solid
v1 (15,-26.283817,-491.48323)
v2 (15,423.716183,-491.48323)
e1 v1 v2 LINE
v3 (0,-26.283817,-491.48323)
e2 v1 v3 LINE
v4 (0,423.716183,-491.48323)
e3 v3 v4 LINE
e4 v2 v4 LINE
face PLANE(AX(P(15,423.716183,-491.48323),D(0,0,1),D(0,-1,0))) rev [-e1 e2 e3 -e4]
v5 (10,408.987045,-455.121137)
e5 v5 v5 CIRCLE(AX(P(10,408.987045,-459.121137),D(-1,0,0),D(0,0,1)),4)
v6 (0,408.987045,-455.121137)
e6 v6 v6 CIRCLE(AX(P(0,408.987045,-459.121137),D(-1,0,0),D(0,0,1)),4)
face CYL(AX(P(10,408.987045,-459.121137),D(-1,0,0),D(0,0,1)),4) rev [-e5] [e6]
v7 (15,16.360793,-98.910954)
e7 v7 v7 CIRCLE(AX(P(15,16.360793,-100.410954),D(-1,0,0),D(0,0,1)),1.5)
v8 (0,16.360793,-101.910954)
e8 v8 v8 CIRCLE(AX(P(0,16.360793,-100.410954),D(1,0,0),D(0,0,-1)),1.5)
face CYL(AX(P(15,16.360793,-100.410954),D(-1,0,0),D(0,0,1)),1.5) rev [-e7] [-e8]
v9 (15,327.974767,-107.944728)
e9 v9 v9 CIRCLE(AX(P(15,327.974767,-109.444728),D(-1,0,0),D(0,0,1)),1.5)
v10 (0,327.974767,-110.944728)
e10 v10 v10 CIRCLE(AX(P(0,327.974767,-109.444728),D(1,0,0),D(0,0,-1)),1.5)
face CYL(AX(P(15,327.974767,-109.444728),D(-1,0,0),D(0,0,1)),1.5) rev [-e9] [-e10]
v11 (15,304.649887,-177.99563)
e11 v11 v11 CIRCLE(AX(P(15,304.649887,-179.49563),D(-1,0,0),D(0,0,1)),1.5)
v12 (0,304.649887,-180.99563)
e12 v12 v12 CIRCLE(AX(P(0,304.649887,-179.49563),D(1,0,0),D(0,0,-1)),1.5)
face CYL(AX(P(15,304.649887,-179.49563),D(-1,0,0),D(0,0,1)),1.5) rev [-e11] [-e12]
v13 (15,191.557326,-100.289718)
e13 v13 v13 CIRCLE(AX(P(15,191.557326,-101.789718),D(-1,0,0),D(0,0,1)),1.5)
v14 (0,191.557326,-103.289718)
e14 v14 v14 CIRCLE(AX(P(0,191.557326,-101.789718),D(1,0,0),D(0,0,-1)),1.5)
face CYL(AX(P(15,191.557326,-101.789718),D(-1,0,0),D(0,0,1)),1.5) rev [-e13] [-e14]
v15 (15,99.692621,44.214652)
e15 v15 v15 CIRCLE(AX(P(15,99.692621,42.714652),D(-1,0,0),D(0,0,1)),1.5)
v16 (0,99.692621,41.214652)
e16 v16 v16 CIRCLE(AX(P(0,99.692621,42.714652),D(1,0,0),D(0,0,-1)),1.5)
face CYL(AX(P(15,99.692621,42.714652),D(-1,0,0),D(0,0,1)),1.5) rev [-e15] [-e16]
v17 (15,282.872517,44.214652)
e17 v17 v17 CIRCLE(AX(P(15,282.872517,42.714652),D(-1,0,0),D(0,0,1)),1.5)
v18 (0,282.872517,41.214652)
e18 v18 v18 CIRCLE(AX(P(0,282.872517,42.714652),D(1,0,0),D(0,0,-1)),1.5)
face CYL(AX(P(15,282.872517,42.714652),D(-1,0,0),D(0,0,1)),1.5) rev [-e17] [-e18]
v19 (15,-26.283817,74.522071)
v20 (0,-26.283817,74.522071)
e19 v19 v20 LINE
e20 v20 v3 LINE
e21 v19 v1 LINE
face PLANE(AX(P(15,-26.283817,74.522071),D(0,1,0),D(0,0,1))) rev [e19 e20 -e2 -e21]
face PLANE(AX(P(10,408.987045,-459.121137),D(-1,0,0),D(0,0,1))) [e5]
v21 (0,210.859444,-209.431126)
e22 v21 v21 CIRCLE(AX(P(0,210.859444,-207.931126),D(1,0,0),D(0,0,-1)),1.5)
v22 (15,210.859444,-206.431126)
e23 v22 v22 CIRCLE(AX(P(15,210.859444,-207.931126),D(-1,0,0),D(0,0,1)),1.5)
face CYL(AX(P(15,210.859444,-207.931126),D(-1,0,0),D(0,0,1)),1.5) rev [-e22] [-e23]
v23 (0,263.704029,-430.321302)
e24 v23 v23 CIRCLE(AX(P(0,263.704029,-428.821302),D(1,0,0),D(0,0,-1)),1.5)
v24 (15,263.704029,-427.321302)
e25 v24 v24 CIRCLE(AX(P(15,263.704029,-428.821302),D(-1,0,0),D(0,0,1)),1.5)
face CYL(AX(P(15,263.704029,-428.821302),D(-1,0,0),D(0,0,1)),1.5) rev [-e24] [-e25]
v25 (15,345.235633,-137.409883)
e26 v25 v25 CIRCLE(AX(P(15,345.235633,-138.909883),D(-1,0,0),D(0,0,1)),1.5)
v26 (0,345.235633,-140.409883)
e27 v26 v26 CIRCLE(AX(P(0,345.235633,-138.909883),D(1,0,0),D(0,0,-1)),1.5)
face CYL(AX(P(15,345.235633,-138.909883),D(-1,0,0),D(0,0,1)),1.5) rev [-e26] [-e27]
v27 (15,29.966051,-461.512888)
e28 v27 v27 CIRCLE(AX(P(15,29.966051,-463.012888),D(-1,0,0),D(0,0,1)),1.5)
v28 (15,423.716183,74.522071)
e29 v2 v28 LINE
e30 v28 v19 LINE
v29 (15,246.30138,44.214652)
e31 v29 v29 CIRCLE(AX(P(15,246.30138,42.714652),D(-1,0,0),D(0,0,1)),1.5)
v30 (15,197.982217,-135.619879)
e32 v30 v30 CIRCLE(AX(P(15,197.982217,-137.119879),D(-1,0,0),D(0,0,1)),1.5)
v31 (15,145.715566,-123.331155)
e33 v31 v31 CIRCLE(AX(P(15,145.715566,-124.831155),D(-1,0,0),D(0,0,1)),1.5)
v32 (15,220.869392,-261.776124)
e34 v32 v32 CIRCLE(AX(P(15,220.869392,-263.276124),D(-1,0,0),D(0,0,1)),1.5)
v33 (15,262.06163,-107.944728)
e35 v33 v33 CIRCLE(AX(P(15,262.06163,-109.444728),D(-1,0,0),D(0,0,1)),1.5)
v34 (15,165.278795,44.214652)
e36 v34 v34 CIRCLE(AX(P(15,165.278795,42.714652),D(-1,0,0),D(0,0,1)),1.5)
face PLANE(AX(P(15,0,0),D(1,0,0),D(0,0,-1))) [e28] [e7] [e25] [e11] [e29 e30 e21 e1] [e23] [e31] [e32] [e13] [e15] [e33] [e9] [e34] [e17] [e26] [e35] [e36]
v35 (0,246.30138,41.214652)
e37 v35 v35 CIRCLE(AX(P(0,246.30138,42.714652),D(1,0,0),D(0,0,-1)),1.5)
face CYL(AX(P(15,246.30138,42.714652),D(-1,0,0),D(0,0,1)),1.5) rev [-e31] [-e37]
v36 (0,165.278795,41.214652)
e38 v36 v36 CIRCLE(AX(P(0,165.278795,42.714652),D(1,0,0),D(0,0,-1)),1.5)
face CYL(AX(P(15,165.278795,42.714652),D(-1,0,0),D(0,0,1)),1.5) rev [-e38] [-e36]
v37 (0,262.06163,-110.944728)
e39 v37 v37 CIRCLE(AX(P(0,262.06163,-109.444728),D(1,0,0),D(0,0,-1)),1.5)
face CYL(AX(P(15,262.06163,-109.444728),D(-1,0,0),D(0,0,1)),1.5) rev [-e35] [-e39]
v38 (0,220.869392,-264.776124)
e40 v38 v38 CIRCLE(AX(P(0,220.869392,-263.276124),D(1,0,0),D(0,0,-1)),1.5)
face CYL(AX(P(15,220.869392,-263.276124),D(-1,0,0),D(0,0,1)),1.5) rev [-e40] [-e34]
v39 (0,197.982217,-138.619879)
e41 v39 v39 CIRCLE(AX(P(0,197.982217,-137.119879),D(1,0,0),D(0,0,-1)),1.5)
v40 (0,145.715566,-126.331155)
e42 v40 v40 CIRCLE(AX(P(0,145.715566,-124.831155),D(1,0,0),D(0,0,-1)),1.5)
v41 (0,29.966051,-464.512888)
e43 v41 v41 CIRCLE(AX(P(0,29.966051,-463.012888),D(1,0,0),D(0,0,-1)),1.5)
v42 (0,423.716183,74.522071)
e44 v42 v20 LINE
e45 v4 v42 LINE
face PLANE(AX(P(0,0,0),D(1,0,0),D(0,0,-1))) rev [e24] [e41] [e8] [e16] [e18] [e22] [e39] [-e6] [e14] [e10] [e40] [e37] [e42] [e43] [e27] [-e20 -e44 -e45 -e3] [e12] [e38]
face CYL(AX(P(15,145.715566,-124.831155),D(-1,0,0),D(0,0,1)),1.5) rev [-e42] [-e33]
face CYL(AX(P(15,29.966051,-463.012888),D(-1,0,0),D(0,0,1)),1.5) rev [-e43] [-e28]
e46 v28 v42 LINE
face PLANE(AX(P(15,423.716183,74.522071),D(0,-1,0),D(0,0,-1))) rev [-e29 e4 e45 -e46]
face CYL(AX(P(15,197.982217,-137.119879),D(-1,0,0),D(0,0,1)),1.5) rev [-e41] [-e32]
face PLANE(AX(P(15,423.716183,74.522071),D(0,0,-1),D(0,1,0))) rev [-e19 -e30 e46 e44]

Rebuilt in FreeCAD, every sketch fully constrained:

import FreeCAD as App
import Part
import Sketcher
Q = App.Units.Quantity


def add_polygon(sketch, points):
    """Adds a closed chain of lines whose ends are joined by coincident constraints."""
    first, n = sketch.GeometryCount, len(points)
    for a, b in zip(points, points[1:] + points[:1]):
        sketch.addGeometry(Part.LineSegment(App.Vector(*a, 0), App.Vector(*b, 0)), False)
    for i in range(n):
        sketch.addConstraint(Sketcher.Constraint("Coincident", first + i, 2, first + (i + 1) % n, 1))

doc = App.newDocument("Part")
params = doc.addObject("Spreadsheet::Sheet", "Params")
for row, (alias, value) in enumerate([
    ("sketch1_width", "450 mm"),
    ("pad1_length", "15 mm"),
    ("sketch2_diameter", "8 mm"),
    ("pocket1_length", "10 mm"),
    ("sketch3_diameter", "3 mm"),
], start=1):
    params.set(f"A{row}", alias)
    params.set(f"B{row}", "=" + value)
    params.setAlias(f"B{row}", alias)

body = doc.addObject("PartDesign::Body", "Body")

# Sketch on YZ plane
sketch1 = doc.addObject("Sketcher::SketchObject", "Sketch")
body.addObject(sketch1)
sketch1.AttachmentSupport = (doc.YZ_Plane, [""])
sketch1.MapMode = "FlatFace"
add_polygon(sketch1, [(424, 75), (-26, 75), (-26, -491), (424, -491)])  # lines 0-3
sketch1.addConstraint(Sketcher.Constraint("Horizontal", 0))
sketch1.addConstraint(Sketcher.Constraint("Vertical", 1))
sketch1.addConstraint(Sketcher.Constraint("Horizontal", 2))
sketch1.addConstraint(Sketcher.Constraint("Vertical", 3))
sketch1.addConstraint(Sketcher.Constraint("DistanceX", 0, 2, 0, 1, Q("450 mm")))
sketch1.addConstraint(Sketcher.Constraint("DistanceY", 1, 2, 1, 1, Q("566.005301 mm")))
sketch1.addConstraint(Sketcher.Constraint("DistanceY", -1, 1, 0, 2, Q("74.522071 mm")))
sketch1.addConstraint(Sketcher.Constraint("DistanceX", 0, 2, -1, 1, Q("26.283817 mm")))
sketch1.setExpression("Constraints[8]", "Params.sketch1_width")
pad1 = doc.addObject("PartDesign::Pad", "Pad")
body.addObject(pad1)
pad1.Profile = sketch1
pad1.setExpression("Length", "Params.pad1_length")

# Sketch on YZ plane
sketch2 = doc.addObject("Sketcher::SketchObject", "Sketch001")
body.addObject(sketch2)
sketch2.AttachmentSupport = (doc.YZ_Plane, [""])
sketch2.MapMode = "FlatFace"
sketch2.addGeometry(Part.Circle(App.Vector(409, -459.1, 0), App.Vector(0, 0, 1), 4), False)
sketch2.addConstraint(Sketcher.Constraint("Diameter", 0, Q("8 mm")))
sketch2.addConstraint(Sketcher.Constraint("DistanceX", -1, 1, 0, 3, Q("408.987045 mm")))
sketch2.addConstraint(Sketcher.Constraint("DistanceY", 0, 3, -1, 1, Q("459.121137 mm")))
sketch2.setExpression("Constraints[0]", "Params.sketch2_diameter")
pocket1 = doc.addObject("PartDesign::Pocket", "Pocket")
body.addObject(pocket1)
pocket1.Profile = sketch2
pocket1.setExpression("Length", "Params.pocket1_length")
pocket1.Reversed = True

# Sketch on YZ plane
sketch3 = doc.addObject("Sketcher::SketchObject", "Sketch002")
body.addObject(sketch3)
sketch3.AttachmentSupport = (doc.YZ_Plane, [""])
sketch3.MapMode = "FlatFace"
sketch3.addGeometry(Part.Circle(App.Vector(345.2, -138.9, 0), App.Vector(0, 0, 1), 1.5), False)
sketch3.addGeometry(Part.Circle(App.Vector(304.6, -179.5, 0), App.Vector(0, 0, 1), 1.5), False)
sketch3.addGeometry(Part.Circle(App.Vector(220.9, -263.3, 0), App.Vector(0, 0, 1), 1.5), False)
sketch3.addGeometry(Part.Circle(App.Vector(210.9, -207.9, 0), App.Vector(0, 0, 1), 1.5), False)
sketch3.addGeometry(Part.Circle(App.Vector(198, -137.1, 0), App.Vector(0, 0, 1), 1.5), False)
sketch3.addGeometry(Part.Circle(App.Vector(165.3, 42.7, 0), App.Vector(0, 0, 1), 1.5), False)
sketch3.addGeometry(Part.Circle(App.Vector(145.7, -124.8, 0), App.Vector(0, 0, 1), 1.5), False)
sketch3.addGeometry(Part.Circle(App.Vector(99.7, 42.7, 0), App.Vector(0, 0, 1), 1.5), False)
sketch3.addGeometry(Part.Circle(App.Vector(16.4, -100.4, 0), App.Vector(0, 0, 1), 1.5), False)
sketch3.addGeometry(Part.Circle(App.Vector(191.6, -101.8, 0), App.Vector(0, 0, 1), 1.5), False)
sketch3.addGeometry(Part.Circle(App.Vector(246.3, 42.7, 0), App.Vector(0, 0, 1), 1.5), False)
sketch3.addGeometry(Part.Circle(App.Vector(263.7, -428.8, 0), App.Vector(0, 0, 1), 1.5), False)
sketch3.addGeometry(Part.Circle(App.Vector(282.9, 42.7, 0), App.Vector(0, 0, 1), 1.5), False)
sketch3.addGeometry(Part.Circle(App.Vector(262.1, -109.4, 0), App.Vector(0, 0, 1), 1.5), False)
sketch3.addGeometry(Part.Circle(App.Vector(328, -109.4, 0), App.Vector(0, 0, 1), 1.5), False)
sketch3.addGeometry(Part.Circle(App.Vector(30, -463, 0), App.Vector(0, 0, 1), 1.5), False)
sketch3.addConstraint(Sketcher.Constraint("Equal", 0, 1))
sketch3.addConstraint(Sketcher.Constraint("Equal", 1, 2))
sketch3.addConstraint(Sketcher.Constraint("Equal", 2, 3))
sketch3.addConstraint(Sketcher.Constraint("Equal", 3, 4))
sketch3.addConstraint(Sketcher.Constraint("Equal", 4, 5))
sketch3.addConstraint(Sketcher.Constraint("Equal", 5, 6))
sketch3.addConstraint(Sketcher.Constraint("Equal", 6, 7))
sketch3.addConstraint(Sketcher.Constraint("Equal", 7, 8))
sketch3.addConstraint(Sketcher.Constraint("Equal", 8, 9))
sketch3.addConstraint(Sketcher.Constraint("Equal", 9, 10))
sketch3.addConstraint(Sketcher.Constraint("Equal", 10, 11))
sketch3.addConstraint(Sketcher.Constraint("Equal", 11, 12))
sketch3.addConstraint(Sketcher.Constraint("Equal", 12, 13))
sketch3.addConstraint(Sketcher.Constraint("Equal", 13, 14))
sketch3.addConstraint(Sketcher.Constraint("Equal", 14, 15))
sketch3.addConstraint(Sketcher.Constraint("Horizontal", 5, 3, 7, 3))
sketch3.addConstraint(Sketcher.Constraint("Horizontal", 7, 3, 10, 3))
sketch3.addConstraint(Sketcher.Constraint("Horizontal", 10, 3, 12, 3))
sketch3.addConstraint(Sketcher.Constraint("Horizontal", 13, 3, 14, 3))
sketch3.addConstraint(Sketcher.Constraint("Diameter", 0, Q("3 mm")))
sketch3.addConstraint(Sketcher.Constraint("DistanceY", 11, 3, -1, 1, Q("428.821302 mm")))
sketch3.addConstraint(Sketcher.Constraint("DistanceY", 6, 3, 8, 3, Q("24.420201 mm")))
sketch3.addConstraint(Sketcher.Constraint("DistanceY", 1, 3, 13, 3, Q("70.050902 mm")))
sketch3.addConstraint(Sketcher.Constraint("DistanceY", 3, 3, 13, 3, Q("98.486399 mm")))
sketch3.addConstraint(Sketcher.Constraint("DistanceY", 1, 3, -1, 1, Q("179.49563 mm")))
sketch3.addConstraint(Sketcher.Constraint("DistanceY", 4, 3, -1, 1, Q("137.119879 mm")))
sketch3.addConstraint(Sketcher.Constraint("DistanceX", -1, 1, 7, 3, Q("99.692621 mm")))
sketch3.addConstraint(Sketcher.Constraint("DistanceY", 9, 3, -1, 1, Q("101.789718 mm")))
sketch3.addConstraint(Sketcher.Constraint("DistanceX", -1, 1, 10, 3, Q("246.30138 mm")))
sketch3.addConstraint(Sketcher.Constraint("DistanceX", -1, 1, 11, 3, Q("263.704029 mm")))
sketch3.addConstraint(Sketcher.Constraint("DistanceX", -1, 1, 13, 3, Q("262.06163 mm")))
sketch3.addConstraint(Sketcher.Constraint("DistanceX", -1, 1, 15, 3, Q("29.966051 mm")))
sketch3.addConstraint(Sketcher.Constraint("DistanceX", 2, 3, 0, 3, Q("124.366241 mm")))
sketch3.addConstraint(Sketcher.Constraint("DistanceY", 2, 3, 0, 3, Q("124.366241 mm")))
sketch3.addConstraint(Sketcher.Constraint("DistanceX", 3, 3, 2, 3, Q("10.009949 mm")))
sketch3.addConstraint(Sketcher.Constraint("DistanceX", 4, 3, 1, 3, Q("106.66767 mm")))
sketch3.addConstraint(Sketcher.Constraint("DistanceX", 5, 3, 4, 3, Q("32.703422 mm")))
sketch3.addConstraint(Sketcher.Constraint("DistanceY", 4, 3, 5, 3, Q("179.834532 mm")))
sketch3.addConstraint(Sketcher.Constraint("DistanceX", 5, 3, 3, 3, Q("45.580648 mm")))
sketch3.addConstraint(Sketcher.Constraint("DistanceX", 6, 3, 4, 3, Q("52.266651 mm")))
sketch3.addConstraint(Sketcher.Constraint("DistanceY", 3, 3, 6, 3, Q("83.099972 mm")))
sketch3.addConstraint(Sketcher.Constraint("DistanceY", 2, 3, 6, 3, Q("138.444969 mm")))
sketch3.addConstraint(Sketcher.Constraint("DistanceX", 8, 3, 7, 3, Q("83.331828 mm")))
sketch3.addConstraint(Sketcher.Constraint("DistanceX", 8, 3, 3, 3, Q("194.498651 mm")))
sketch3.addConstraint(Sketcher.Constraint("DistanceX", 9, 3, 4, 3, Q("6.42489 mm")))
sketch3.addConstraint(Sketcher.Constraint("DistanceX", 9, 3, 12, 3, Q("91.315191 mm")))
sketch3.addConstraint(Sketcher.Constraint("DistanceX", 1, 3, 14, 3, Q("23.32488 mm")))
sketch3.addConstraint(Sketcher.Constraint("DistanceY", 15, 3, 3, 3, Q("255.081761 mm")))
sketch3.setExpression("Constraints[19]", "Params.sketch3_diameter")
pocket2 = doc.addObject("PartDesign::Pocket", "Pocket001")
body.addObject(pocket2)
pocket2.Profile = sketch3
pocket2.Type = "ThroughAll"
pocket2.Midplane = True

doc.recompute()
